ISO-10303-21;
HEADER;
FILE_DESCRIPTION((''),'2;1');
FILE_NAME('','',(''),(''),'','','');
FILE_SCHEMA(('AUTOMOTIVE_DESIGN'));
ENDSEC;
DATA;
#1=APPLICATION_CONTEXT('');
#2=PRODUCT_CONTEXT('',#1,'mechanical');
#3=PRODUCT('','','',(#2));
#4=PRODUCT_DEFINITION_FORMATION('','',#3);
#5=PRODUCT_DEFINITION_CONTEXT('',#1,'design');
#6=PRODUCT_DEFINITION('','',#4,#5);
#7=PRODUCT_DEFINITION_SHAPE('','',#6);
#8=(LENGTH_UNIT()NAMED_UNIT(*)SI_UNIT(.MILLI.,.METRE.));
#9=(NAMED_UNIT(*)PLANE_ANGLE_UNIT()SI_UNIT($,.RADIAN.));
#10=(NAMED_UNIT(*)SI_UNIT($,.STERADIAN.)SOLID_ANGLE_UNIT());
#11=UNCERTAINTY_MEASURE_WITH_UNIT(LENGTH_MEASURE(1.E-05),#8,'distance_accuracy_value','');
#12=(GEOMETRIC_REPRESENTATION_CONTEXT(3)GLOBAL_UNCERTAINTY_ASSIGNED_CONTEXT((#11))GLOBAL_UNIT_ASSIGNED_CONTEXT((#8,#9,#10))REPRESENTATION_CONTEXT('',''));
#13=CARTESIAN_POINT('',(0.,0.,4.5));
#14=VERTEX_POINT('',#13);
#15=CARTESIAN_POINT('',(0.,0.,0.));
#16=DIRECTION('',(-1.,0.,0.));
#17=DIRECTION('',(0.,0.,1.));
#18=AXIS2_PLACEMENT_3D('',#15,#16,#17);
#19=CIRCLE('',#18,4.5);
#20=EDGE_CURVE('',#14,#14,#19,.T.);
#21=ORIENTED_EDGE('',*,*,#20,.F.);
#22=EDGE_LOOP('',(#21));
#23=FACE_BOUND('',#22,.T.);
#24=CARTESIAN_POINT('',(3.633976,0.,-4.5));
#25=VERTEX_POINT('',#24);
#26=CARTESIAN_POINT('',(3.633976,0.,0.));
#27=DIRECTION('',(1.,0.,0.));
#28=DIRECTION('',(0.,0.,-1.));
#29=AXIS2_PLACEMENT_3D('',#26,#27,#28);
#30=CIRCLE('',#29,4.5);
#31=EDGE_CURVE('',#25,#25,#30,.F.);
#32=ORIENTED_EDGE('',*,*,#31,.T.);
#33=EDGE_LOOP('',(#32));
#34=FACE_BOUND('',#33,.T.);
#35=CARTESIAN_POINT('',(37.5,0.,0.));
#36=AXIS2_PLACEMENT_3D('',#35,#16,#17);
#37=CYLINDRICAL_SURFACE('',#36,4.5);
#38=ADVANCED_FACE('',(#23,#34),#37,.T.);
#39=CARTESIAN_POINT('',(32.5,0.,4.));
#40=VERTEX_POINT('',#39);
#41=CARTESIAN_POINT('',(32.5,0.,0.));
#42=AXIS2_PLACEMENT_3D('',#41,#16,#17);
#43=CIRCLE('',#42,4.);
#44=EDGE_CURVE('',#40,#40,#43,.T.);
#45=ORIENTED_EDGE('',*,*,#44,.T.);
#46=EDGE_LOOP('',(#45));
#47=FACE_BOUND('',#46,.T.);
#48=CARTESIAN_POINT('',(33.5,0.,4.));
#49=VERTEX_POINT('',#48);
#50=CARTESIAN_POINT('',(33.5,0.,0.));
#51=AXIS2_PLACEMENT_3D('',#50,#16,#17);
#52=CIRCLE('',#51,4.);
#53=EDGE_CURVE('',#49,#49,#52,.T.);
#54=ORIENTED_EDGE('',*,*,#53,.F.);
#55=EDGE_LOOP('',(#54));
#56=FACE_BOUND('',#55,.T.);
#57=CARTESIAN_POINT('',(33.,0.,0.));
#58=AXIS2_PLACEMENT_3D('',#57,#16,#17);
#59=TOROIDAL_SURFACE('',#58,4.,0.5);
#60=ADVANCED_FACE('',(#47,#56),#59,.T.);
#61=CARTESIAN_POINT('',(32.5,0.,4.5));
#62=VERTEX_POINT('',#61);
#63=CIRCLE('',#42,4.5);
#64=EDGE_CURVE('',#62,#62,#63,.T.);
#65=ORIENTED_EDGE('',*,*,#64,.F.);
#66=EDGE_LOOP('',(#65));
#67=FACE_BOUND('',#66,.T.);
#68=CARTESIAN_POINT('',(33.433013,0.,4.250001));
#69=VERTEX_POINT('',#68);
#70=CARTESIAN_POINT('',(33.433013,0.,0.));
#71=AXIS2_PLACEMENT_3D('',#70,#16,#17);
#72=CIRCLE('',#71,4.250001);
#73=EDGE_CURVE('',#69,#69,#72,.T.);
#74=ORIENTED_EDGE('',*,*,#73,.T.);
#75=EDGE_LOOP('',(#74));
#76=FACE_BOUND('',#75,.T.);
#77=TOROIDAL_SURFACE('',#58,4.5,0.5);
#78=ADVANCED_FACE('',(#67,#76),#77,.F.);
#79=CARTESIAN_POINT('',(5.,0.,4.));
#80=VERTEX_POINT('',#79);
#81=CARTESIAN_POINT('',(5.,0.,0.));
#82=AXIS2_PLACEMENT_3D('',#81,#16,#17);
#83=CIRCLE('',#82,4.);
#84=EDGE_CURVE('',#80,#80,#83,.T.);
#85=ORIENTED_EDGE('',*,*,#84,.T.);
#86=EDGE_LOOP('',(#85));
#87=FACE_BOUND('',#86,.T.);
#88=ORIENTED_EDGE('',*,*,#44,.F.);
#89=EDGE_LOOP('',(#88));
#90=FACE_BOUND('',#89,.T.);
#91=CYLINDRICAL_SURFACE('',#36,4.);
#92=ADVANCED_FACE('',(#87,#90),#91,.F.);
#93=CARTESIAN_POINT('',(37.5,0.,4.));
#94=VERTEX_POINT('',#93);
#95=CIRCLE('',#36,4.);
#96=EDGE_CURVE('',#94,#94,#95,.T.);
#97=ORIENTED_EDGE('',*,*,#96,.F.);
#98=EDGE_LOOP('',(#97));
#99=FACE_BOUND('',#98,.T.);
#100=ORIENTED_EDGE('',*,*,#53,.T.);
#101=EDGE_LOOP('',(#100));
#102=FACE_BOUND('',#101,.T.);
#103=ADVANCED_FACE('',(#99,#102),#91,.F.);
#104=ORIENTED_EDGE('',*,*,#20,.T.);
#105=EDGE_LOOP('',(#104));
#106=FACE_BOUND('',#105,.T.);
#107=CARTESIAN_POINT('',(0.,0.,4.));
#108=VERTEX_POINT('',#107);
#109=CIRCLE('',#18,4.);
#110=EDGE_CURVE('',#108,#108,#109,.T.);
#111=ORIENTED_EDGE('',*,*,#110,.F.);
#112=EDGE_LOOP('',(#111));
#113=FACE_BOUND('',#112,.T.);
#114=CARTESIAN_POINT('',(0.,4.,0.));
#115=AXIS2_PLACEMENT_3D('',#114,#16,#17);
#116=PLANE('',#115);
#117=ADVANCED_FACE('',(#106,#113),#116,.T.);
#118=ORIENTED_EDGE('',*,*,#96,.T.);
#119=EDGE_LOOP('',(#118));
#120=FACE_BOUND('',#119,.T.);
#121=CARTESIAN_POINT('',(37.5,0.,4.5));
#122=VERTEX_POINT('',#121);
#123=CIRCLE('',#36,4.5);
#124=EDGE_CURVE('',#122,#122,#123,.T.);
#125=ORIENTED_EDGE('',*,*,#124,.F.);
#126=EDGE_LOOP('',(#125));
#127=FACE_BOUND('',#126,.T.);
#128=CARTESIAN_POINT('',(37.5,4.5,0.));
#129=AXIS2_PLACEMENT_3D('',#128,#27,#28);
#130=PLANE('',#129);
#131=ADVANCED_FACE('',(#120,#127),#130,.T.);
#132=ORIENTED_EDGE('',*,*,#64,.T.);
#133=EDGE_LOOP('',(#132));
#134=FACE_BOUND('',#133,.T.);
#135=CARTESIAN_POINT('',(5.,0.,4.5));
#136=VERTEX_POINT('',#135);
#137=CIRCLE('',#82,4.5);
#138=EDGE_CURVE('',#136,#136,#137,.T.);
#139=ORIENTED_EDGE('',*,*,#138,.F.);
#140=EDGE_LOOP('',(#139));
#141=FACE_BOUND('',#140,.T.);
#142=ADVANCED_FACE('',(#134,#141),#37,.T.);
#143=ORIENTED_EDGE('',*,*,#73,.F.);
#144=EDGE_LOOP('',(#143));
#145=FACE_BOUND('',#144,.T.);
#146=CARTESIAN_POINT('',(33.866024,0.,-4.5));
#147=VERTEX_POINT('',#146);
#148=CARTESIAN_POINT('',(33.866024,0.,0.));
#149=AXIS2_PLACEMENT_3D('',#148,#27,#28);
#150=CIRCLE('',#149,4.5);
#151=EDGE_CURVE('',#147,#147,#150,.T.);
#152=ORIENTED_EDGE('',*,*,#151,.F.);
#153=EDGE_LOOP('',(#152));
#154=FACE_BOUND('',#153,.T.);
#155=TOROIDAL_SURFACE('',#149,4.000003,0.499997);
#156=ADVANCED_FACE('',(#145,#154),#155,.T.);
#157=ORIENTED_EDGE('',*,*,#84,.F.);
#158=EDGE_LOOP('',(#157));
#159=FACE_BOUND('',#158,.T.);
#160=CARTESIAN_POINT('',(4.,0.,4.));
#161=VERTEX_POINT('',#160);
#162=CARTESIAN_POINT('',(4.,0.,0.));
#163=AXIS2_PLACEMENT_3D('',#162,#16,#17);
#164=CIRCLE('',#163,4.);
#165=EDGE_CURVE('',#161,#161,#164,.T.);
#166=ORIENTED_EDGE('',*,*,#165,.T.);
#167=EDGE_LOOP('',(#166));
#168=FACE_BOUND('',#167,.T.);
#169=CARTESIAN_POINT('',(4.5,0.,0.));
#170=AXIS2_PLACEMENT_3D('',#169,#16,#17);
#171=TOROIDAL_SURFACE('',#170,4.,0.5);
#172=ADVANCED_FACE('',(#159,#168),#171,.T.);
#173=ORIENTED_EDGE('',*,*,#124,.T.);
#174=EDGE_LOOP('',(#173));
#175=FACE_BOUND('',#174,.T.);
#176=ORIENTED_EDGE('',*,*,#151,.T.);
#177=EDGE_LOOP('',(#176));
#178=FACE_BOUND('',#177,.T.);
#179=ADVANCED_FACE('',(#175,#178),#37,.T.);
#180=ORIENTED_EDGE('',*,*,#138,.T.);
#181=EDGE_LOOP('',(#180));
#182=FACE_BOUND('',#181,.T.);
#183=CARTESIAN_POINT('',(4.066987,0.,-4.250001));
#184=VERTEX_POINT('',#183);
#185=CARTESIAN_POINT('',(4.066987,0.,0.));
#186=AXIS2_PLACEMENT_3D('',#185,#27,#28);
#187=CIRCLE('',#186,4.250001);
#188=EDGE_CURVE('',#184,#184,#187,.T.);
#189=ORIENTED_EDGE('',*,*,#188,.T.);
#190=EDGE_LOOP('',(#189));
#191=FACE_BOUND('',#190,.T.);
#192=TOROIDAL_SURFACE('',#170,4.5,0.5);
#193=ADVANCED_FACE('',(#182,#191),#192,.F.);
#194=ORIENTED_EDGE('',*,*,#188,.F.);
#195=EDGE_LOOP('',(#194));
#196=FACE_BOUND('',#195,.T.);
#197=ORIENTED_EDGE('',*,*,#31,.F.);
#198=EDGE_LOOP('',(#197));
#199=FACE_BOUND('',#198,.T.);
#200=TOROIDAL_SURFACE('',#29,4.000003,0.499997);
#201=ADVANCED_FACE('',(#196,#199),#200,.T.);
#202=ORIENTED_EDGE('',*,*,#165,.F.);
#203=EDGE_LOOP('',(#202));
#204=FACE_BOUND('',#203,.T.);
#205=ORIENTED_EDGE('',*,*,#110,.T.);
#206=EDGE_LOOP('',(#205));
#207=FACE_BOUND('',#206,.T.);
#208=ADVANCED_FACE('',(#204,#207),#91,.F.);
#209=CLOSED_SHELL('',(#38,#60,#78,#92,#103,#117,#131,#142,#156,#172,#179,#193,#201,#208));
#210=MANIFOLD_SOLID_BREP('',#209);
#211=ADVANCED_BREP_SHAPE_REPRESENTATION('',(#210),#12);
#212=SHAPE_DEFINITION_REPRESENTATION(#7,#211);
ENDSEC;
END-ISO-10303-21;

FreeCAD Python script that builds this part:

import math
import FreeCAD as App
import Part
import Sketcher
from FreeCAD import Vector


def edges_at(feature, points):
    """Names of the edges that pass closest to the given points."""
    edges = feature.Shape.Edges
    near = lambda p: min(range(len(edges)), key=lambda i: edges[i].distToShape(Part.Vertex(*p))[0])
    return sorted({f"Edge{near(p) + 1}" for p in points})

doc = App.newDocument("Part")
body = doc.addObject("PartDesign::Body", "Body")

sketch1 = doc.addObject("Sketcher::SketchObject", "Sketch")
body.addObject(sketch1)
sketch1.AttachmentSupport = (doc.XY_Plane, [""])
sketch1.MapMode = "FlatFace"
sketch1.addGeometry(Part.LineSegment(Vector(4, 4, 0), Vector(0, 4, 0)), False)
sketch1.addGeometry(Part.LineSegment(Vector(0, 4, 0), Vector(0, 4.5, 0)), False)
sketch1.addGeometry(Part.LineSegment(Vector(0, 4.5, 0), Vector(4, 4.5, 0)), False)
sketch1.addGeometry(Part.ArcOfCircle(Part.Circle(Vector(4.5, 4.5, 0), Vector(0, 0, 1), 0.5), math.radians(180), math.radians(360)), False)
sketch1.addGeometry(Part.LineSegment(Vector(5, 4.5, 0), Vector(32.5, 4.5, 0)), False)
sketch1.addGeometry(Part.ArcOfCircle(Part.Circle(Vector(33, 4.5, 0), Vector(0, 0, 1), 0.5), math.radians(180), math.radians(360)), False)
sketch1.addGeometry(Part.LineSegment(Vector(33.5, 4.5, 0), Vector(37.5, 4.5, 0)), False)
sketch1.addGeometry(Part.LineSegment(Vector(37.5, 4.5, 0), Vector(37.5, 4, 0)), False)
sketch1.addGeometry(Part.LineSegment(Vector(37.5, 4, 0), Vector(33.5, 4, 0)), False)
sketch1.addGeometry(Part.ArcOfCircle(Part.Circle(Vector(33, 4, 0), Vector(0, 0, 1), 0.5), math.radians(180), math.radians(360)), False)
sketch1.addGeometry(Part.LineSegment(Vector(32.5, 4, 0), Vector(5, 4, 0)), False)
sketch1.addGeometry(Part.ArcOfCircle(Part.Circle(Vector(4.5, 4, 0), Vector(0, 0, 1), 0.5), math.radians(180), math.radians(360)), False)
sketch1.addConstraint(Sketcher.Constraint("Coincident", 0, 2, 1, 1))
sketch1.addConstraint(Sketcher.Constraint("Coincident", 1, 2, 2, 1))
sketch1.addConstraint(Sketcher.Constraint("Coincident", 2, 2, 3, 1))
sketch1.addConstraint(Sketcher.Constraint("Coincident", 3, 2, 4, 1))
sketch1.addConstraint(Sketcher.Constraint("Coincident", 4, 2, 5, 1))
sketch1.addConstraint(Sketcher.Constraint("Coincident", 5, 2, 6, 1))
sketch1.addConstraint(Sketcher.Constraint("Coincident", 6, 2, 7, 1))
sketch1.addConstraint(Sketcher.Constraint("Coincident", 7, 2, 8, 1))
sketch1.addConstraint(Sketcher.Constraint("Coincident", 8, 2, 9, 2))
sketch1.addConstraint(Sketcher.Constraint("Coincident", 9, 1, 10, 1))
sketch1.addConstraint(Sketcher.Constraint("Coincident", 10, 2, 11, 2))
sketch1.addConstraint(Sketcher.Constraint("Coincident", 11, 1, 0, 1))
sketch1.addConstraint(Sketcher.Constraint("Horizontal", 0))
sketch1.addConstraint(Sketcher.Constraint("Vertical", 1))
sketch1.addConstraint(Sketcher.Constraint("Horizontal", 2))
sketch1.addConstraint(Sketcher.Constraint("Horizontal", 4))
sketch1.addConstraint(Sketcher.Constraint("Horizontal", 6))
sketch1.addConstraint(Sketcher.Constraint("Vertical", 7))
sketch1.addConstraint(Sketcher.Constraint("Horizontal", 8))
sketch1.addConstraint(Sketcher.Constraint("Horizontal", 10))
sketch1.addConstraint(Sketcher.Constraint("Equal", 3, 5))
sketch1.addConstraint(Sketcher.Constraint("Equal", 5, 9))
sketch1.addConstraint(Sketcher.Constraint("Equal", 9, 11))
sketch1.addConstraint(Sketcher.Constraint("PointOnObject", 0, 2, -2))
sketch1.addConstraint(Sketcher.Constraint("Horizontal", 3, 3, 5, 3))
sketch1.addConstraint(Sketcher.Constraint("Horizontal", 9, 3, 11, 3))
sketch1.addConstraint(Sketcher.Constraint("Horizontal", 11, 3, 0, 2))
sketch1.addConstraint(Sketcher.Constraint("Horizontal", 5, 3, 1, 2))
sketch1.addConstraint(Sketcher.Constraint("Horizontal", 2, 2, 3, 2))
sketch1.addConstraint(Sketcher.Constraint("Horizontal", 4, 2, 5, 2))
sketch1.addConstraint(Sketcher.Constraint("Horizontal", 0, 2, 7, 2))
sketch1.addConstraint(Sketcher.Constraint("Horizontal", 8, 2, 9, 1))
sketch1.addConstraint(Sketcher.Constraint("Vertical", 5, 3, 9, 3))
sketch1.addConstraint(Sketcher.Constraint("Vertical", 3, 3, 11, 3))
sketch1.addConstraint(Sketcher.Constraint("Equal", 2, 6))
sketch1.addConstraint(Sketcher.Constraint("Radius", 3, 0.5))
sketch1.addConstraint(Sketcher.Constraint("DistanceX", 0, 2, 0, 1, 4.0))
sketch1.addConstraint(Sketcher.Constraint("DistanceX", 4, 1, 4, 2, 27.5))
sketch1.addConstraint(Sketcher.Constraint("DistanceY", 1, 1, 1, 2, 0.5))
sketch1.addConstraint(Sketcher.Constraint("DistanceY", -1, 1, 9, 3, 4.0))
revolution = doc.addObject("PartDesign::Revolution", "Revolution")
body.addObject(revolution)
revolution.Profile = sketch1
revolution.ReferenceAxis = (sketch1, ["H_Axis"])
revolution.Angle = 360
doc.recompute()

fillet = doc.addObject("PartDesign::Fillet", "Fillet")
body.addObject(fillet)
fillet.Base = (revolution, edges_at(revolution, [(33.5, 0, -4.5), (4, 0, -4.5)]))
fillet.Radius = 0.499997

doc.recompute()
